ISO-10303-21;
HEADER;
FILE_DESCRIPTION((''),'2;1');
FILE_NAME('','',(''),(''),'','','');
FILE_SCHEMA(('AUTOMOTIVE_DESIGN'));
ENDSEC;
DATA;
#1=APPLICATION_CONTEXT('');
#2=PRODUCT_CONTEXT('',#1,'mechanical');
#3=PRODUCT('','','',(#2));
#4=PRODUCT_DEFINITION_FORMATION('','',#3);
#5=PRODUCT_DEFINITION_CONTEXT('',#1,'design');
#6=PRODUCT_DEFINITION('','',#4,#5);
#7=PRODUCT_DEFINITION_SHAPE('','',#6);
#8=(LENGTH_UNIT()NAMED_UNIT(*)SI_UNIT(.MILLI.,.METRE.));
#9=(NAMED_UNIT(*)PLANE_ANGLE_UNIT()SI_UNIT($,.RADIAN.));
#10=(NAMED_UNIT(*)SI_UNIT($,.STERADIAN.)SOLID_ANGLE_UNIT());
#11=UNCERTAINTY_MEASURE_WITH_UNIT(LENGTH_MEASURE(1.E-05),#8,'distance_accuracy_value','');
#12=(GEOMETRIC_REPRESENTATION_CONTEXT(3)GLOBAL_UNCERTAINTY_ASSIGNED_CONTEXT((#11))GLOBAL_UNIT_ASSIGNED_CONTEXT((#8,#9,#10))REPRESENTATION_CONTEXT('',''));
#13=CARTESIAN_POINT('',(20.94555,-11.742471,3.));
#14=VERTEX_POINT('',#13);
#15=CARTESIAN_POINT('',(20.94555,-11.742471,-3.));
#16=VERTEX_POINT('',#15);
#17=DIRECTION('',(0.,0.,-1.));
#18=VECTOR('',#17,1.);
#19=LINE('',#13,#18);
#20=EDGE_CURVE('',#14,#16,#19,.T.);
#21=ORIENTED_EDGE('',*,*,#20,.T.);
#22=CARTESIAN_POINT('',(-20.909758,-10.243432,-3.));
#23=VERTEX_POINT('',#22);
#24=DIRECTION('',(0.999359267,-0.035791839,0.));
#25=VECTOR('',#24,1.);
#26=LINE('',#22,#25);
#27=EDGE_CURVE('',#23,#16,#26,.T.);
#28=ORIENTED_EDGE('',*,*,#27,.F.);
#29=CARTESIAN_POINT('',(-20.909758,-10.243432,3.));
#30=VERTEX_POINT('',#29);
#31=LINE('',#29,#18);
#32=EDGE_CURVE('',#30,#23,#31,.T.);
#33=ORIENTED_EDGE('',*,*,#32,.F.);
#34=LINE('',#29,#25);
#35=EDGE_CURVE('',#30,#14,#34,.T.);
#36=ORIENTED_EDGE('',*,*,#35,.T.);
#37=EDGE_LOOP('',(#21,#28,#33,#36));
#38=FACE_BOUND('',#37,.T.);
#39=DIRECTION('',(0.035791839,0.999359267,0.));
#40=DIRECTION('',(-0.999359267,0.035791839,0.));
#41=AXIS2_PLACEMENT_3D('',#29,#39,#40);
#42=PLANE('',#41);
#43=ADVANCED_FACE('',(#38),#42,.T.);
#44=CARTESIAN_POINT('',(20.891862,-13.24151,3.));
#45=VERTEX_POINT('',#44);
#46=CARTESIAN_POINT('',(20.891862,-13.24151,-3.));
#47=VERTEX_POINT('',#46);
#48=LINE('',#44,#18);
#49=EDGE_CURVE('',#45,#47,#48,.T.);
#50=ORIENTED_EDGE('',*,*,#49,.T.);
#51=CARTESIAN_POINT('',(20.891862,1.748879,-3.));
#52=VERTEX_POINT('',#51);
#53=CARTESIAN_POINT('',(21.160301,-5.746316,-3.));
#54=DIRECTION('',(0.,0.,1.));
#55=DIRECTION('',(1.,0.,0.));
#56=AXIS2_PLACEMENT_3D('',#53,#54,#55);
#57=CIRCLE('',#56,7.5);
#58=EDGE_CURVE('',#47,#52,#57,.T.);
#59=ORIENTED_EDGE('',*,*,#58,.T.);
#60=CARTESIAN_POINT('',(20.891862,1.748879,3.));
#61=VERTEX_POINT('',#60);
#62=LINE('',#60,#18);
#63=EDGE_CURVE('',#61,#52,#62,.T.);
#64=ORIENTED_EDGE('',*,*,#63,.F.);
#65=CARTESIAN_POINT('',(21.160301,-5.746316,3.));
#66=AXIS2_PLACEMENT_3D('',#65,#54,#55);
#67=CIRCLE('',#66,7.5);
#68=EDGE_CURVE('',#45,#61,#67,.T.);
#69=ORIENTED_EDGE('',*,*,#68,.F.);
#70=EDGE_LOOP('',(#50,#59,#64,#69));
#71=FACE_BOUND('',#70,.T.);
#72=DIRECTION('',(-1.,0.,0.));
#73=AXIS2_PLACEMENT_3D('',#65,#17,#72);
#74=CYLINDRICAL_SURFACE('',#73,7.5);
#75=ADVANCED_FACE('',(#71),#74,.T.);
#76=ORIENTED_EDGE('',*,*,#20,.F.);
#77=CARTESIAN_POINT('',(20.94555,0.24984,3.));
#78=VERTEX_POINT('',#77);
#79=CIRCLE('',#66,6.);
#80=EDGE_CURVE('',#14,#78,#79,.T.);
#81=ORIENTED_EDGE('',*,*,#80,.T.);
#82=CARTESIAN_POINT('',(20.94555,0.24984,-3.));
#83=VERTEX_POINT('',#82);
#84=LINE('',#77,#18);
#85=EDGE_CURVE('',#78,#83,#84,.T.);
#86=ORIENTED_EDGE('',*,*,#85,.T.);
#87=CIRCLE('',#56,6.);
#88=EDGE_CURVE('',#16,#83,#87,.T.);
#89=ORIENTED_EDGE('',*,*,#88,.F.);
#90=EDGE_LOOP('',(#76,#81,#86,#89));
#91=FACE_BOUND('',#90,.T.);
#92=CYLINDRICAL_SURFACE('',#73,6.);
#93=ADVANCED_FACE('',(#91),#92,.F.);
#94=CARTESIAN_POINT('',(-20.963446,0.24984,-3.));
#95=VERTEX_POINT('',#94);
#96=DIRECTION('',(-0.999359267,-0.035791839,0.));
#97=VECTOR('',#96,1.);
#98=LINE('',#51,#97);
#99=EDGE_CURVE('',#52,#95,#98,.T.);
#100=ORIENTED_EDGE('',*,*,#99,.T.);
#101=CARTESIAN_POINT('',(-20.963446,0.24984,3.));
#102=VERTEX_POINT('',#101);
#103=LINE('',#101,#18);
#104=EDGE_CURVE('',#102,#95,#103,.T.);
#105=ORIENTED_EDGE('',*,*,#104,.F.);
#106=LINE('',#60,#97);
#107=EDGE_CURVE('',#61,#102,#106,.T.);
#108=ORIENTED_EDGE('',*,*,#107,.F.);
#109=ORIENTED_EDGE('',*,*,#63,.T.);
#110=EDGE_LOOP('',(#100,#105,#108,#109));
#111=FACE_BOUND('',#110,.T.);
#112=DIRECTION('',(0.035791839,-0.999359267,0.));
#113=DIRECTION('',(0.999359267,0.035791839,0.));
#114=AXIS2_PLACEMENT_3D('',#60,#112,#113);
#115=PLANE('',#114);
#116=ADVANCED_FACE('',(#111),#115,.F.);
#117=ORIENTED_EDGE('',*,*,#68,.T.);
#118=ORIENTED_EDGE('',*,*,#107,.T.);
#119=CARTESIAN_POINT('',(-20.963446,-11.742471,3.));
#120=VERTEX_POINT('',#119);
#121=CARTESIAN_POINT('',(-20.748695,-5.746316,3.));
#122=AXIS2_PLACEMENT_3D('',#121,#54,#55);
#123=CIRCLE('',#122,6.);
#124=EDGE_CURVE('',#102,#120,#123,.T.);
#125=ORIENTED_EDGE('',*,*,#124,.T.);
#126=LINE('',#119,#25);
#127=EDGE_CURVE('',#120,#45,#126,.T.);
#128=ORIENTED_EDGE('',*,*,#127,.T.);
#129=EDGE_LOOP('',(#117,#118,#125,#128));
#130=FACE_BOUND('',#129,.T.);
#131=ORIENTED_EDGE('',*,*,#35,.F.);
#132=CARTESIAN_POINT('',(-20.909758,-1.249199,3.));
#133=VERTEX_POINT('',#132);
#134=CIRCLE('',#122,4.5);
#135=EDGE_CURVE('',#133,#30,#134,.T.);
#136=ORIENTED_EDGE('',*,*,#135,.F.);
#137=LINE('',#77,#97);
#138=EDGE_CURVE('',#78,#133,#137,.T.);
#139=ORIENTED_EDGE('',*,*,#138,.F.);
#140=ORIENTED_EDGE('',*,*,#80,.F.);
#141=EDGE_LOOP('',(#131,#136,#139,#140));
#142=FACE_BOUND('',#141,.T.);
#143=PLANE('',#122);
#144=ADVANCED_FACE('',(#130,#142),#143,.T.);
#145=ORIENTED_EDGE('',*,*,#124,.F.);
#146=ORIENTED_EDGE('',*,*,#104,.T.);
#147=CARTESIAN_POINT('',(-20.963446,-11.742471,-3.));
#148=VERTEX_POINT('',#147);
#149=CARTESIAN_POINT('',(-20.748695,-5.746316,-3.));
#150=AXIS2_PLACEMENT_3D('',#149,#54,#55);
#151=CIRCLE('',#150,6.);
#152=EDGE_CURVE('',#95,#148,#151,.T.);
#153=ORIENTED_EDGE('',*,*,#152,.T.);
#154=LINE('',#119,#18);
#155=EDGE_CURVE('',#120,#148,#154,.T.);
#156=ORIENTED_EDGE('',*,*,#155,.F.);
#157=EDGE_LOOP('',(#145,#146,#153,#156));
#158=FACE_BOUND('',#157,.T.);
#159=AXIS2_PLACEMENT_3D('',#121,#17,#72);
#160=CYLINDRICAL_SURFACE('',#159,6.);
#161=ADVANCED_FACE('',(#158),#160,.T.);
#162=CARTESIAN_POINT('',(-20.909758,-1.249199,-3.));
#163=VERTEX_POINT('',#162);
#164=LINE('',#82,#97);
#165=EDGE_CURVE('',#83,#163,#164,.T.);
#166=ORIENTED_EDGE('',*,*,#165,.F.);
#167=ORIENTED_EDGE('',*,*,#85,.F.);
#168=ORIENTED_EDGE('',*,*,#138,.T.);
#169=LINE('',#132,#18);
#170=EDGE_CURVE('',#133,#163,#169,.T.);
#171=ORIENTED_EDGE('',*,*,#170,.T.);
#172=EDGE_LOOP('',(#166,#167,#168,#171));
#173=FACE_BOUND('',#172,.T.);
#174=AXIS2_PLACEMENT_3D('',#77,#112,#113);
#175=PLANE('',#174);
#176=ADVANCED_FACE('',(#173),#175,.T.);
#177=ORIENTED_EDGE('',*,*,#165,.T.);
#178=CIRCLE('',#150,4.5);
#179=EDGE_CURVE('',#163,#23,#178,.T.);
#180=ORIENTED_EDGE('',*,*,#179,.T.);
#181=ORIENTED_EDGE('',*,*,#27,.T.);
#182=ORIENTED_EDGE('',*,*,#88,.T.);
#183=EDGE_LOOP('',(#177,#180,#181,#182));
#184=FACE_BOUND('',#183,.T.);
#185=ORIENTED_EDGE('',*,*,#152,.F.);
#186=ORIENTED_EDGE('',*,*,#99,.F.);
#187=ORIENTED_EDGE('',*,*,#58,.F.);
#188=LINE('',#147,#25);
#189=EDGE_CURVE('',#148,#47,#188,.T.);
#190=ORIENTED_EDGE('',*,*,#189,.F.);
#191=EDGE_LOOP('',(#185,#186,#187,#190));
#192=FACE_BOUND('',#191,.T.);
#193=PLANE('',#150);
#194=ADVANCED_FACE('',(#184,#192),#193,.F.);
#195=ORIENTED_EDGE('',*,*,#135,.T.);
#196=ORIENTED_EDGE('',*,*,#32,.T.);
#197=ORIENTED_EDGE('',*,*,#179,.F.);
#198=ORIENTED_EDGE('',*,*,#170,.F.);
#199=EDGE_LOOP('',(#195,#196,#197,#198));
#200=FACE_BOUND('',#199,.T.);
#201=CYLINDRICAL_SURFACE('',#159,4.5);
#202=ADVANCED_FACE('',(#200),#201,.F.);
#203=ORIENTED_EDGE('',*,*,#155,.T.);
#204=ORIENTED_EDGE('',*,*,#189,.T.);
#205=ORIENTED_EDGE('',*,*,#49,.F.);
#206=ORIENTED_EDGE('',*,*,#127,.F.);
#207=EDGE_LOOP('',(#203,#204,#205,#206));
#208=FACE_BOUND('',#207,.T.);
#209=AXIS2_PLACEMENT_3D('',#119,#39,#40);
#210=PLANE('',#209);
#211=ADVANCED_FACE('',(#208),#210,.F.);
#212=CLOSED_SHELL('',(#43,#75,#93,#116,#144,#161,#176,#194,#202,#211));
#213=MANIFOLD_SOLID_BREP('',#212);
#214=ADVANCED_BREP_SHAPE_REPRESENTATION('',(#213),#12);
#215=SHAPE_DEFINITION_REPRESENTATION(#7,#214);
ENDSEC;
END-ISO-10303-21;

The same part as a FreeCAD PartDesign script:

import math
import FreeCAD as App
import Part
import Sketcher

doc = App.newDocument("Part")
body = doc.addObject("PartDesign::Body", "Body")

sketch1 = body.newObject("Sketcher::SketchObject", "Sketch")
sketch1.AttachmentSupport = (doc.getObject("XY_Plane"), [""])
sketch1.MapMode = "FlatFace"
sketch1.addGeometry(Part.LineSegment(App.Vector(20.9, 1.7, 0), App.Vector(-21, 0.2, 0)), False)
sketch1.addGeometry(Part.ArcOfCircle(Part.Circle(App.Vector(-20.7, -5.7, 0), App.Vector(0, 0, 1), 6), math.radians(92), math.radians(268)), False)
sketch1.addGeometry(Part.LineSegment(App.Vector(-21, -11.7, 0), App.Vector(20.9, -13.2, 0)), False)
sketch1.addGeometry(Part.ArcOfCircle(Part.Circle(App.Vector(21.2, -5.7, 0), App.Vector(0, 0, 1), 7.5), math.radians(-92), math.radians(92)), False)
sketch1.addGeometry(Part.LineSegment(App.Vector(-20.9, -1.2, 0), App.Vector(20.9, 0.2, 0)), False)
sketch1.addGeometry(Part.ArcOfCircle(Part.Circle(App.Vector(21.2, -5.7, 0), App.Vector(0, 0, 1), 6), math.radians(-92), math.radians(92)), False)
sketch1.addGeometry(Part.LineSegment(App.Vector(20.9, -11.7, 0), App.Vector(-20.9, -10.2, 0)), False)
sketch1.addGeometry(Part.ArcOfCircle(Part.Circle(App.Vector(-20.7, -5.7, 0), App.Vector(0, 0, 1), 4.5), math.radians(92), math.radians(268)), False)
sketch1.addConstraint(Sketcher.Constraint("Tangent", 0, 2, 1, 1))
sketch1.addConstraint(Sketcher.Constraint("Tangent", 1, 2, 2, 1))
sketch1.addConstraint(Sketcher.Constraint("Tangent", 2, 2, 3, 1))
sketch1.addConstraint(Sketcher.Constraint("Tangent", 3, 2, 0, 1))
sketch1.addConstraint(Sketcher.Constraint("Tangent", 4, 2, 5, 2))
sketch1.addConstraint(Sketcher.Constraint("Tangent", 5, 1, 6, 1))
sketch1.addConstraint(Sketcher.Constraint("Tangent", 6, 2, 7, 2))
sketch1.addConstraint(Sketcher.Constraint("Tangent", 7, 1, 4, 1))
sketch1.addConstraint(Sketcher.Constraint("Coincident", 5, 3, 3, 3))
sketch1.addConstraint(Sketcher.Constraint("Coincident", 7, 3, 1, 3))
sketch1.addConstraint(Sketcher.Constraint("Equal", 1, 5))
sketch1.addConstraint(Sketcher.Constraint("Parallel", 0, 4))
sketch1.addConstraint(Sketcher.Constraint("Horizontal", 1, 3, 3, 3))
sketch1.addConstraint(Sketcher.Constraint("Radius", 1, 6.0))
sketch1.addConstraint(Sketcher.Constraint("Radius", 3, 7.5))
sketch1.addConstraint(Sketcher.Constraint("DistanceX", -1, 1, 3, 3, 21.160301))
sketch1.addConstraint(Sketcher.Constraint("DistanceY", 7, 1, -1, 1, 1.249199))
sketch1.addConstraint(Sketcher.Constraint("DistanceX", -1, 1, 4, 2, 20.94555))
pad1 = body.newObject("PartDesign::Pad", "Pad")
pad1.Profile = sketch1
pad1.Length = 6
pad1.Midplane = True

doc.recompute()
